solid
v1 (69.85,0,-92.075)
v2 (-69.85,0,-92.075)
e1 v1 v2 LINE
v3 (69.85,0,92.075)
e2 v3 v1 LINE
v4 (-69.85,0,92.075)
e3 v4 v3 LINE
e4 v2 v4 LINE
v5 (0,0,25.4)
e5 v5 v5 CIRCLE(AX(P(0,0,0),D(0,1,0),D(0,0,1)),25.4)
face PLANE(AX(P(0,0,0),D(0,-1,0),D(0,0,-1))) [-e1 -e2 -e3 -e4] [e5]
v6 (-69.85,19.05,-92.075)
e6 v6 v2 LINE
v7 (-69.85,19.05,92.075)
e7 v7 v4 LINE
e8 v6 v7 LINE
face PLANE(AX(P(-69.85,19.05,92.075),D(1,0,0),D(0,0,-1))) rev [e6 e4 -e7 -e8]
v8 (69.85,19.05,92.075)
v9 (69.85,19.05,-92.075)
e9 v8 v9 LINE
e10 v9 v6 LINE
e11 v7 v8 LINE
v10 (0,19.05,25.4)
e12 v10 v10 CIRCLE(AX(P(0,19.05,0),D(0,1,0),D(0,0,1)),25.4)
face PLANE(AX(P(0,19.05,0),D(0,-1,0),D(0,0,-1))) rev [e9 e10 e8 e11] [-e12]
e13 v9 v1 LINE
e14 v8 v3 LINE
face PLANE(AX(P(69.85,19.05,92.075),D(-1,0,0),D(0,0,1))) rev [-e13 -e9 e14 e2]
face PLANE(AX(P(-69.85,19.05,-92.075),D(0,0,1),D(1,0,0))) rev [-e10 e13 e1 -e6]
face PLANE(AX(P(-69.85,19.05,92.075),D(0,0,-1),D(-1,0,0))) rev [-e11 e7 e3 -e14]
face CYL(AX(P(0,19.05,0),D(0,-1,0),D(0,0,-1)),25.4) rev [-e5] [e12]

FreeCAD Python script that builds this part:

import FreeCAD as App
import Part
import Sketcher
Q = App.Units.Quantity

doc = App.newDocument("Part")
body = doc.addObject("PartDesign::Body", "Body")

sketch1 = body.newObject("Sketcher::SketchObject", "Sketch")
sketch1.AttachmentSupport = (doc.getObject("XZ_Plane"), [""])
sketch1.MapMode = "FlatFace"
sketch1.addGeometry([
    Part.LineSegment(App.Vector(-70, -92, 0), App.Vector(-70, 92, 0)),
    Part.LineSegment(App.Vector(-70, 92, 0), App.Vector(70, 92, 0)),
    Part.LineSegment(App.Vector(70, 92, 0), App.Vector(70, -92, 0)),
    Part.LineSegment(App.Vector(70, -92, 0), App.Vector(-70, -92, 0)),
    Part.Circle(App.Vector(0, 0, 0), App.Vector(0, 0, 1), 25),
], False)
sketch1.addConstraint([
    Sketcher.Constraint("Coincident", 0, 2, 1, 1),
    Sketcher.Constraint("Coincident", 1, 2, 2, 1),
    Sketcher.Constraint("Coincident", 2, 2, 3, 1),
    Sketcher.Constraint("Coincident", 3, 2, 0, 1),
    Sketcher.Constraint("Vertical", 0),
    Sketcher.Constraint("Horizontal", 1),
    Sketcher.Constraint("Vertical", 2),
    Sketcher.Constraint("Horizontal", 3),
    Sketcher.Constraint("Coincident", 4, 3, -1, 1),
    Sketcher.Constraint("Symmetric", 0, 2, 2, 2, -1, 1),
    Sketcher.Constraint("Diameter", 4, Q("2 in")),
    Sketcher.Constraint("DistanceX", 1, 1, 1, 2, Q("5.5 in")),
    Sketcher.Constraint("DistanceY", 0, 1, 0, 2, Q("7.25 in")),
])
pad1 = body.newObject("PartDesign::Pad", "Pad")
pad1.Profile = sketch1
pad1.Length = Q("0.75 in")
pad1.Reversed = True

doc.recompute()
